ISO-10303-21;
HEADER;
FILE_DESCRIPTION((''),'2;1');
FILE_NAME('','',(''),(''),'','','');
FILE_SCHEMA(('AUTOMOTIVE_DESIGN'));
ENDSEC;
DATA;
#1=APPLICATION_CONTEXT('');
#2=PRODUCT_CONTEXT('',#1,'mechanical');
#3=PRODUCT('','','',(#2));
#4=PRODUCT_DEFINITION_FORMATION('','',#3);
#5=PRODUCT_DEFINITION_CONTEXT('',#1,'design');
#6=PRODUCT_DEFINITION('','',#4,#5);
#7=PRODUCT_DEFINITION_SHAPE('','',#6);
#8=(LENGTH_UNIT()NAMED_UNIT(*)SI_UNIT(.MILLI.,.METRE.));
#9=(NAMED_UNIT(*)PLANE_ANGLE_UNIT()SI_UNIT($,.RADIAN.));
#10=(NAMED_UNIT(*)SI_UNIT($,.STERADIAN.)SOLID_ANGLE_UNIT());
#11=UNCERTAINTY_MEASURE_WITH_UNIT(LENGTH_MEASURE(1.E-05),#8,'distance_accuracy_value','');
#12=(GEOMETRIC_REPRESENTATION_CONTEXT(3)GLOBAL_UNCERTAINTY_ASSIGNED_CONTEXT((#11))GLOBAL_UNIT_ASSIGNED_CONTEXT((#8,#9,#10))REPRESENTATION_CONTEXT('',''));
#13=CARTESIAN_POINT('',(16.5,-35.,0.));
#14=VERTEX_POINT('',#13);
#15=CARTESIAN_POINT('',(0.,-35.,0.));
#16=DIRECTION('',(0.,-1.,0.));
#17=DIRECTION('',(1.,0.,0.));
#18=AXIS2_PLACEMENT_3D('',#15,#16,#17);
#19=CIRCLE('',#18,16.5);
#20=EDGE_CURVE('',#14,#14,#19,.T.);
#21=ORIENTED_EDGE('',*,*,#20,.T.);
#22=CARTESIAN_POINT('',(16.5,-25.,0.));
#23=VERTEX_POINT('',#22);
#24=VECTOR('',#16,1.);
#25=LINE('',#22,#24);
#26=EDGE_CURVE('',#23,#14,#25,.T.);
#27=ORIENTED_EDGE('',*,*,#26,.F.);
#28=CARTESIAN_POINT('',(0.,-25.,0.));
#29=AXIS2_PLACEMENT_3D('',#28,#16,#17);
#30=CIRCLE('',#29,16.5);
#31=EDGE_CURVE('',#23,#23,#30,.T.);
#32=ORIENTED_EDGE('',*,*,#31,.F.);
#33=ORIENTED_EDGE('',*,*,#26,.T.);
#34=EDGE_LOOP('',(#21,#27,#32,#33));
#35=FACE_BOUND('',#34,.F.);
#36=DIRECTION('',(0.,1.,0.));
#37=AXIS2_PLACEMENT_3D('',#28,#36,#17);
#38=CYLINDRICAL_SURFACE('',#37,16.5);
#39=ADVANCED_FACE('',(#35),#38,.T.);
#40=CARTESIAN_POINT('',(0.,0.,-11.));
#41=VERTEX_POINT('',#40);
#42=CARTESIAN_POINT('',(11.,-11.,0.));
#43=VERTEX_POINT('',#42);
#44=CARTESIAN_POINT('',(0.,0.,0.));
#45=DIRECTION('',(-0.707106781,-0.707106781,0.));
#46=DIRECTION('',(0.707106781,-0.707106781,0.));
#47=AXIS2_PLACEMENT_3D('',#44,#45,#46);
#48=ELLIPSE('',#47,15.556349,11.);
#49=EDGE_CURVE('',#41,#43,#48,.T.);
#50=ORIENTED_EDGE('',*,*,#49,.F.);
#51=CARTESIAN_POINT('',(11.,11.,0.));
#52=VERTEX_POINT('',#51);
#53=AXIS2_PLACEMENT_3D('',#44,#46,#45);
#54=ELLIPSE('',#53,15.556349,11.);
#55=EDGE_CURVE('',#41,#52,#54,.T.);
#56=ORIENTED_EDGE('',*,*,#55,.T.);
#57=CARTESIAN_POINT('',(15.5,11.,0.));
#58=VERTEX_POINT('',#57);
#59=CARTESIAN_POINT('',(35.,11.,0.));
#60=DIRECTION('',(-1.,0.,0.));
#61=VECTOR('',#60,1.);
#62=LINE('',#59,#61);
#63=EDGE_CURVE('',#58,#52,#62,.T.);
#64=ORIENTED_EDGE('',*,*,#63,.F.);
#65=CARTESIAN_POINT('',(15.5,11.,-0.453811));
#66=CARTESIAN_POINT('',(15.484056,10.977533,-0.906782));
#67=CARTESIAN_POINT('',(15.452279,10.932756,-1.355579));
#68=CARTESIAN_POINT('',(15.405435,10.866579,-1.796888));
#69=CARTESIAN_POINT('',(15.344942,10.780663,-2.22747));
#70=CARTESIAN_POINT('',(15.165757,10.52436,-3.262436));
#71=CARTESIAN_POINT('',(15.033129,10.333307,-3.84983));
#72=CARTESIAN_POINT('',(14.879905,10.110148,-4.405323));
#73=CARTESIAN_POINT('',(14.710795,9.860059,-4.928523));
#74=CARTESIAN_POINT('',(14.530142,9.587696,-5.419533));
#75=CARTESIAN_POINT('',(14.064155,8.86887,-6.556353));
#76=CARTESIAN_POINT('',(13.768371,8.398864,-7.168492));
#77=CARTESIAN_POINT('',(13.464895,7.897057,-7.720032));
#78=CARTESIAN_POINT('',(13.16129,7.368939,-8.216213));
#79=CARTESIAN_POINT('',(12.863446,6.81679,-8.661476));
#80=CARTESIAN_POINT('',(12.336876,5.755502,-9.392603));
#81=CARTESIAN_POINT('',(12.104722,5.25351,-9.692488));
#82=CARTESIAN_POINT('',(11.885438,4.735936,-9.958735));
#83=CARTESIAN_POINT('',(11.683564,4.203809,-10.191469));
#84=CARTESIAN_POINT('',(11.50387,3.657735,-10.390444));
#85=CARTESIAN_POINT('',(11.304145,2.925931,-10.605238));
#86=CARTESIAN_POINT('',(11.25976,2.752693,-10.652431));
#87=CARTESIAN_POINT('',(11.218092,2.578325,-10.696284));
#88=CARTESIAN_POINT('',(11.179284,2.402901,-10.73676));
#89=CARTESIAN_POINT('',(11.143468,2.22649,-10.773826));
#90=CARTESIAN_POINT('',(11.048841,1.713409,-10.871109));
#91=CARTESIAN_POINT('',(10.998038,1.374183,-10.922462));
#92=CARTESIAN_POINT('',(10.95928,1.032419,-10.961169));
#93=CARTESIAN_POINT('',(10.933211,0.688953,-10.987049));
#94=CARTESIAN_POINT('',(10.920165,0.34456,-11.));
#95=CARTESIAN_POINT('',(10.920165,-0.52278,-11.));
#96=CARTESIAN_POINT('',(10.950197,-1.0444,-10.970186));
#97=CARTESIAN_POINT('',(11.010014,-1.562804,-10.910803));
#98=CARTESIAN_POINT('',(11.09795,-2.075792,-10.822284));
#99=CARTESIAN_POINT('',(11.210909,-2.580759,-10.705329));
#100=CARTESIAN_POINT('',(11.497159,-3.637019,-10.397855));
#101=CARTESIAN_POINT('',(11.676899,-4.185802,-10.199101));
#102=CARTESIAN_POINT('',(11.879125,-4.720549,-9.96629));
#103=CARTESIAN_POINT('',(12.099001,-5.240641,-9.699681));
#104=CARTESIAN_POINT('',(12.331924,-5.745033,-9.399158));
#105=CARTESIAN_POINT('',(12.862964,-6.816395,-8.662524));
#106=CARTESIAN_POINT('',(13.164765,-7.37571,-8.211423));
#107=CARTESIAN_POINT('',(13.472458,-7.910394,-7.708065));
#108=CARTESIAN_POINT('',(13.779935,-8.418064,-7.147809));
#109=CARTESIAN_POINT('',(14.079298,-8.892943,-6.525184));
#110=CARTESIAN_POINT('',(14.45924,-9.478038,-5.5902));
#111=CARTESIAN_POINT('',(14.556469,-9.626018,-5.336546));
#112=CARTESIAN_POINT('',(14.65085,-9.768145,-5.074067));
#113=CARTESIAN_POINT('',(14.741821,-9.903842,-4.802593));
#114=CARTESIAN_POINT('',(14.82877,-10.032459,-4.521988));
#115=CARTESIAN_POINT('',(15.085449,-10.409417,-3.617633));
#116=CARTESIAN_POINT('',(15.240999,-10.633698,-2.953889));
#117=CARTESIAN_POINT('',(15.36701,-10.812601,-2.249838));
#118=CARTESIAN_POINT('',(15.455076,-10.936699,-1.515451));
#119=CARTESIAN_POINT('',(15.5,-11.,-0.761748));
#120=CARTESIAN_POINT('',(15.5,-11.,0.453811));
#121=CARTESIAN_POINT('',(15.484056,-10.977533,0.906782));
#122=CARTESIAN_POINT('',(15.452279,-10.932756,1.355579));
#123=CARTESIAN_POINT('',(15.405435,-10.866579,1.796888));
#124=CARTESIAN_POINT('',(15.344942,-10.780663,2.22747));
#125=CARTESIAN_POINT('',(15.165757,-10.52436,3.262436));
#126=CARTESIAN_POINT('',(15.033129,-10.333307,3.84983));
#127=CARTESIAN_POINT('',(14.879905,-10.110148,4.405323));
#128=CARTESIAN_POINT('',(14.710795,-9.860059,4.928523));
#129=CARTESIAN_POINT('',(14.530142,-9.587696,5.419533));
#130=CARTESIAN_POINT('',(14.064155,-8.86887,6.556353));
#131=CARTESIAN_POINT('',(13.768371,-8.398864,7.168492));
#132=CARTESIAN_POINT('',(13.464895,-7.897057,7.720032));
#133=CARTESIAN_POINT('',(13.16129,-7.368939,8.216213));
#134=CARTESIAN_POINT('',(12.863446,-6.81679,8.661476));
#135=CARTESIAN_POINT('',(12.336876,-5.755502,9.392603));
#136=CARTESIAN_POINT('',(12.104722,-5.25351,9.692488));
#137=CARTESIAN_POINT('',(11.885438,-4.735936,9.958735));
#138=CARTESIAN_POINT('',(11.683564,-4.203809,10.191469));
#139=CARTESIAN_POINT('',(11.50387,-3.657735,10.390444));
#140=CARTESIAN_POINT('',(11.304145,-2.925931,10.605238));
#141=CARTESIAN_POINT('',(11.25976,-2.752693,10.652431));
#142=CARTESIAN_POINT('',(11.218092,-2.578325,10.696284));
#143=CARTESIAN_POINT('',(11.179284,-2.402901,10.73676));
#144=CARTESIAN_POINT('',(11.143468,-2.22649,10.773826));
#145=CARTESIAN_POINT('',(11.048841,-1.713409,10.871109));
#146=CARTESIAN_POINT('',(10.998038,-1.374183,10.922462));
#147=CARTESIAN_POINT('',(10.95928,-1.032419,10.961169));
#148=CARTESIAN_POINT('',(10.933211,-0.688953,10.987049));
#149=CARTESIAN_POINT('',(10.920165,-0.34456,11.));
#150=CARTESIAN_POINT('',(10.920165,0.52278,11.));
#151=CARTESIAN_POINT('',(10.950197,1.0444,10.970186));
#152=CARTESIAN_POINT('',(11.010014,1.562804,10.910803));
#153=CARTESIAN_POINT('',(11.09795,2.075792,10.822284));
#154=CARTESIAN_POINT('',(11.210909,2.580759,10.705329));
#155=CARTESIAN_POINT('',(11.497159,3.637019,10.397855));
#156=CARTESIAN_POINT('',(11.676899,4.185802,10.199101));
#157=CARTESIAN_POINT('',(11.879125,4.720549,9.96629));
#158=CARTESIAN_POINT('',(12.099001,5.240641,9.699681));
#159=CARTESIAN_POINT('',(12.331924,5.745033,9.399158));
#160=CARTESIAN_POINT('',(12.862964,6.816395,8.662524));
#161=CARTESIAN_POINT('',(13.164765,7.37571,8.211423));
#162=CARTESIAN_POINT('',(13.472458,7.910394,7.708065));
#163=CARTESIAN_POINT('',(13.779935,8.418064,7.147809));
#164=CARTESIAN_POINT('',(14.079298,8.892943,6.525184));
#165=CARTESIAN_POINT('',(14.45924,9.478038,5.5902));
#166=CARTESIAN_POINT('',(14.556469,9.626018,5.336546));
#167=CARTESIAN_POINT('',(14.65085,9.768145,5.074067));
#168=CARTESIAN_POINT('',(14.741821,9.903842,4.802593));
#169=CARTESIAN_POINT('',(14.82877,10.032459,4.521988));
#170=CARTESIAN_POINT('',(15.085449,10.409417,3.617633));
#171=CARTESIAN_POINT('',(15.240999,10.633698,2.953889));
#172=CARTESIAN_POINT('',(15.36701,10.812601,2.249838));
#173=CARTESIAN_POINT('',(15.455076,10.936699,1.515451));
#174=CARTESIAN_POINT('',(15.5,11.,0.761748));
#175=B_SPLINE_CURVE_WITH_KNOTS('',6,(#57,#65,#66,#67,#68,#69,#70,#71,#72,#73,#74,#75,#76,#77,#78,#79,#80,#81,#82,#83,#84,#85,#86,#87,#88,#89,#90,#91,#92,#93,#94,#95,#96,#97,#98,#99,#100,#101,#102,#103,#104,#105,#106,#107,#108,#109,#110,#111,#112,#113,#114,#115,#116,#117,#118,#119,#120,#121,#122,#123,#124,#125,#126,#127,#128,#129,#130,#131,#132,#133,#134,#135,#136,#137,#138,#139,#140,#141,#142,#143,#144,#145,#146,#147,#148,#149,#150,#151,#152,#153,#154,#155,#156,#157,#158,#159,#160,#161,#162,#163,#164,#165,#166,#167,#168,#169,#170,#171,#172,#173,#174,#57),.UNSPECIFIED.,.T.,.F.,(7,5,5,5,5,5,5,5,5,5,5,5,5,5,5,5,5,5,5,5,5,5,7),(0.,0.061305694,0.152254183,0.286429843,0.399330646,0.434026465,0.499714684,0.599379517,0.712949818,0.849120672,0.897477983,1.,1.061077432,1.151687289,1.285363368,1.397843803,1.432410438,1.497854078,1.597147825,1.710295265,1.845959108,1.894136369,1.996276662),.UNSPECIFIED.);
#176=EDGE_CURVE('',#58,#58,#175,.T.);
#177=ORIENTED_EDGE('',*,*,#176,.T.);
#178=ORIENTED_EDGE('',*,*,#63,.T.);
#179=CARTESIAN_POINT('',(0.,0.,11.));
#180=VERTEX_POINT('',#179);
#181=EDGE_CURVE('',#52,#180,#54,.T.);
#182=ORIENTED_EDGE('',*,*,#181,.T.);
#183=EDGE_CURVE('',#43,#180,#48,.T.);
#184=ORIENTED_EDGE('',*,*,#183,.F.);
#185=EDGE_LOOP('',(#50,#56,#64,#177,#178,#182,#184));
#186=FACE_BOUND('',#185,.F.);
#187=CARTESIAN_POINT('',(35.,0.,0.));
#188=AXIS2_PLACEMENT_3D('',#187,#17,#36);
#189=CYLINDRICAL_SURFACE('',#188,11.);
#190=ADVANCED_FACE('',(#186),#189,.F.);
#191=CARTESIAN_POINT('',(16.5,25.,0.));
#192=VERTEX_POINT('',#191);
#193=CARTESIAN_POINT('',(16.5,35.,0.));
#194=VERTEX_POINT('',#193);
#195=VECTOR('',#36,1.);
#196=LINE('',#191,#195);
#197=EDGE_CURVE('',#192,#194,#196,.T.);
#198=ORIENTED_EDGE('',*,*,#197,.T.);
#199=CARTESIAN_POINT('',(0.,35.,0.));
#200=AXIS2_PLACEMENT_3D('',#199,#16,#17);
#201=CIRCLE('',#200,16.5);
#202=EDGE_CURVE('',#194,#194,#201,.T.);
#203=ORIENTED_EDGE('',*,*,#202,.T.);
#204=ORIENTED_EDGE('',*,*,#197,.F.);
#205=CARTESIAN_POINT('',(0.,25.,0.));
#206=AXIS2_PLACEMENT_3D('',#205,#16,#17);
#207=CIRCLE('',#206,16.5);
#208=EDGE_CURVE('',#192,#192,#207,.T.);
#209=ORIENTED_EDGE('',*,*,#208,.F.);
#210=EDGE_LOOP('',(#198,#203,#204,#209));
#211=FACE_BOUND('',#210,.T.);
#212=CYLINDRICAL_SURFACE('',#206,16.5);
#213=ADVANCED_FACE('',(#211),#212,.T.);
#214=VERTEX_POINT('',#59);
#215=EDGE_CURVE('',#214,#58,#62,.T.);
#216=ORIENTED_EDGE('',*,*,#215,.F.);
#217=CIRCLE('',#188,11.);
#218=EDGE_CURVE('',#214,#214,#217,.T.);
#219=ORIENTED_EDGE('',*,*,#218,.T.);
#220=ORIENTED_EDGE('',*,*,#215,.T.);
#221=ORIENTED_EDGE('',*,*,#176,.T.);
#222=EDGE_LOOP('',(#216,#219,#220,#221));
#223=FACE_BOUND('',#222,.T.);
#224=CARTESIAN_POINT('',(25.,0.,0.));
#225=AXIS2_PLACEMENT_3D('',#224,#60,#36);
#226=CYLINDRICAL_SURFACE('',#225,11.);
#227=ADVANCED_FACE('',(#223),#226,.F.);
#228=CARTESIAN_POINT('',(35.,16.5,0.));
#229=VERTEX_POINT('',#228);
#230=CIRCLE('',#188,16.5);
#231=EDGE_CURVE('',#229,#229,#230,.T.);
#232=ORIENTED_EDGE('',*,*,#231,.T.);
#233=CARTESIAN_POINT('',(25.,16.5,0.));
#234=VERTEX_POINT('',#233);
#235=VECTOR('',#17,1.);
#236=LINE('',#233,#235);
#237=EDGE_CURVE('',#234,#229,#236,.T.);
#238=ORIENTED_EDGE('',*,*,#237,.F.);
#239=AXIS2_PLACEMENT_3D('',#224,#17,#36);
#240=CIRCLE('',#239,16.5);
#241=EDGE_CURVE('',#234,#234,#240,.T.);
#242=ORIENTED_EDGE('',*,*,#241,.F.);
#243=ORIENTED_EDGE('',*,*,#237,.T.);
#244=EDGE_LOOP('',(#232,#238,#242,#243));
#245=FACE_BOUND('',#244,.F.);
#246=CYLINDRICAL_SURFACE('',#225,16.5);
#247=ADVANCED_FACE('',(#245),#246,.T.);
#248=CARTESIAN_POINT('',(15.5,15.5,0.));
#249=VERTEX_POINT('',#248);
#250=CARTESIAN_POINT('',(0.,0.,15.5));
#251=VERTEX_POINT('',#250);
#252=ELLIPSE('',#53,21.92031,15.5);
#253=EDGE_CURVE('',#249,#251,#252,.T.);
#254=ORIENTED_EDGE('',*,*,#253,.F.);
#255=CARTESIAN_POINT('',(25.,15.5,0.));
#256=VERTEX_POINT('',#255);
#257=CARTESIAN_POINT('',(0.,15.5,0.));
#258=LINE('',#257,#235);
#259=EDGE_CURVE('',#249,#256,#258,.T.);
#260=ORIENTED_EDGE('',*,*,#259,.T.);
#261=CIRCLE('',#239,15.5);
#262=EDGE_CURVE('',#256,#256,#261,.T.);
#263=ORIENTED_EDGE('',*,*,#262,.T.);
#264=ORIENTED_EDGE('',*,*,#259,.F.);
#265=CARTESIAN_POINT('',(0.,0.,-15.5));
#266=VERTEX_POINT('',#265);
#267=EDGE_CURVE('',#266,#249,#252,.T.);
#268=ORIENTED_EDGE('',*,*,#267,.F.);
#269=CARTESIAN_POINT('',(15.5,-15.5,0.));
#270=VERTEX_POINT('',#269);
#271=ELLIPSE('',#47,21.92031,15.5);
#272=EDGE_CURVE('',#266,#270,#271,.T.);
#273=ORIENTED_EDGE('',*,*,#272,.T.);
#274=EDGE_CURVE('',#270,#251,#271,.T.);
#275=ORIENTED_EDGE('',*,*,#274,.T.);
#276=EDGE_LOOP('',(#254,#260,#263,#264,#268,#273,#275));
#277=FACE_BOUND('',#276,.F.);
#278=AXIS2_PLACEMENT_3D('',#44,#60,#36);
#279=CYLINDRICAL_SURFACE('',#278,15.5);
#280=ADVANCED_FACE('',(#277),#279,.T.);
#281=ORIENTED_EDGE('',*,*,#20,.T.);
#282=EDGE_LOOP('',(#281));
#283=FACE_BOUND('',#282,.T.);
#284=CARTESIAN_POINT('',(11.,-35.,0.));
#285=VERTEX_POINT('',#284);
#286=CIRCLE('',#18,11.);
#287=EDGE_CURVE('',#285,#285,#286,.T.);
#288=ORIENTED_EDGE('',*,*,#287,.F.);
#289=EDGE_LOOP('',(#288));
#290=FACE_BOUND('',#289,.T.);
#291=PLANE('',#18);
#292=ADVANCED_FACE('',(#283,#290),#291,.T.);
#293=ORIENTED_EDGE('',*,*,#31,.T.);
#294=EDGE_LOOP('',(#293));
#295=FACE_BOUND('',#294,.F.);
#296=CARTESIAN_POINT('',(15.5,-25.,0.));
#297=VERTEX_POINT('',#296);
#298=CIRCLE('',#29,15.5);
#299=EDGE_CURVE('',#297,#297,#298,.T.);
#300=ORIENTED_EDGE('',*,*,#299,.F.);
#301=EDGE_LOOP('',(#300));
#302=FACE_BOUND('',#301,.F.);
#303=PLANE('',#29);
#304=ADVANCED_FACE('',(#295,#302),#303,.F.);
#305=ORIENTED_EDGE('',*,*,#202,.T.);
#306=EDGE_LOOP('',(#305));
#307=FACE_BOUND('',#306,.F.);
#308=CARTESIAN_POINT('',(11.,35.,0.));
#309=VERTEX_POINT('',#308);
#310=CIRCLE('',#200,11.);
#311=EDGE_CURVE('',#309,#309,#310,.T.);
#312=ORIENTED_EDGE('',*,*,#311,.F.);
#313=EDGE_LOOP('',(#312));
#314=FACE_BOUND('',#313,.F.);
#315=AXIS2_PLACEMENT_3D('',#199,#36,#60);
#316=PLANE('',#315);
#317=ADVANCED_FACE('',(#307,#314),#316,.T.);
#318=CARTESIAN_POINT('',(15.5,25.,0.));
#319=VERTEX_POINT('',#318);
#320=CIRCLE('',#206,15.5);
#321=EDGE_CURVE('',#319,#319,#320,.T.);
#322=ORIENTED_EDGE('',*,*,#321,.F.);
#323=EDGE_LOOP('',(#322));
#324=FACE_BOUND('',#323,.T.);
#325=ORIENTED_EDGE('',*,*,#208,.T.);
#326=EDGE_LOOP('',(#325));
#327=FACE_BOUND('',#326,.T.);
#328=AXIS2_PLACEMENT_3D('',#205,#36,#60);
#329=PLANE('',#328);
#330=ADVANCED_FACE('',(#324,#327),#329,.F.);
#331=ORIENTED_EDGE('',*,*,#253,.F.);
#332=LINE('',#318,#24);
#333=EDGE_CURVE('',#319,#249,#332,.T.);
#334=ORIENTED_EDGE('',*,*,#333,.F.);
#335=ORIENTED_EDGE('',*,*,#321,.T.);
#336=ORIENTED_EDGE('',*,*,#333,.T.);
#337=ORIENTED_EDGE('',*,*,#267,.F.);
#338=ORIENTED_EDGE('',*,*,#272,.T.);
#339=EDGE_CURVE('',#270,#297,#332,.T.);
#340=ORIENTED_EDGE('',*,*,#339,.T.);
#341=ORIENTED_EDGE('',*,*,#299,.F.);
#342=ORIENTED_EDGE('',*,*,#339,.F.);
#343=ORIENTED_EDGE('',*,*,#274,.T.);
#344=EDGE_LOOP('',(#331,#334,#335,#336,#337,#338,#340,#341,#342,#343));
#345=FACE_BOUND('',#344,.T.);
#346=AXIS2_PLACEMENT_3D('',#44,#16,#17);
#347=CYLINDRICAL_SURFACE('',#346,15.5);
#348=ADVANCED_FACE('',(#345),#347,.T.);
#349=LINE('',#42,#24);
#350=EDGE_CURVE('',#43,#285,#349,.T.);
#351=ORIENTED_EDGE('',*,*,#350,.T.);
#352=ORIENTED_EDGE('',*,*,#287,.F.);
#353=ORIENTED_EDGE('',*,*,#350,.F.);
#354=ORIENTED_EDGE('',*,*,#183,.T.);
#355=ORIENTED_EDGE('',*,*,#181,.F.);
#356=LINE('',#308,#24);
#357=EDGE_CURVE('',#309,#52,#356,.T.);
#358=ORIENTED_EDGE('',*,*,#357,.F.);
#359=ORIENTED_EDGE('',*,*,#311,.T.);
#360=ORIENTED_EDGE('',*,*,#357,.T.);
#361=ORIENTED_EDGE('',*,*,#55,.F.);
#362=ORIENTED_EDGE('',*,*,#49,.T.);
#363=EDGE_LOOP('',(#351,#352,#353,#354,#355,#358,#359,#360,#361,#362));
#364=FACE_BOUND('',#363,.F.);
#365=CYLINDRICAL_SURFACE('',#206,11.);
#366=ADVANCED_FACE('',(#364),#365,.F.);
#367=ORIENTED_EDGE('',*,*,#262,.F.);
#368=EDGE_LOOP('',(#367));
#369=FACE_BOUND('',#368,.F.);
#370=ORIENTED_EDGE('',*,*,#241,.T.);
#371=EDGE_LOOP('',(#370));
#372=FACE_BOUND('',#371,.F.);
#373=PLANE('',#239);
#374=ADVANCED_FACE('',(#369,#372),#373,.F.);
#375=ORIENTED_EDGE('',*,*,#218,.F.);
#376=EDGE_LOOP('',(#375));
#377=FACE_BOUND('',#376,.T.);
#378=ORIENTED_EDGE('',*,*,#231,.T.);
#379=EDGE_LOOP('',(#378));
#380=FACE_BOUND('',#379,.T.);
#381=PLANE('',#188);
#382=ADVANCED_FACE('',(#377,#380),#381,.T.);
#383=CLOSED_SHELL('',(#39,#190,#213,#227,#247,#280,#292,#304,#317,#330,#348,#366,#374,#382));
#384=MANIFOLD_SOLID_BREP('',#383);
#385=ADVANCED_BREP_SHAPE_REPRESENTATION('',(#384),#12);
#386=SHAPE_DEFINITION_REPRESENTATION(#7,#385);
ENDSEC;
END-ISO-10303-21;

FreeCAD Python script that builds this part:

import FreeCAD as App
import Part
import Sketcher
from FreeCAD import Vector

doc = App.newDocument("Part")
params = doc.addObject("Spreadsheet::Sheet", "Params")
for row, (alias, value) in enumerate([
    ("sketch1_diameter", "31 mm"),
    ("sketch1_diameter2", "22 mm"),
    ("pad1_length", "25 mm"),
    ("sketch2_diameter", "33 mm"),
    ("sketch2_diameter2", "22 mm"),
    ("pad2_length", "10 mm"),
    ("sketch3_diameter", "31 mm"),
    ("sketch3_diameter2", "22 mm"),
    ("pad3_length", "25 mm"),
    ("sketch4_diameter", "33 mm"),
    ("sketch4_diameter2", "22 mm"),
    ("pad4_length", "10 mm"),
    ("sketch5_diameter", "22 mm"),
    ("pocket1_length", "200 mm"),
    ("sketch6_diameter", "22 mm"),
    ("pocket2_length", "35 mm"),
], start=1):
    params.set(f"A{row}", alias)
    params.set(f"B{row}", "=" + value)
    params.setAlias(f"B{row}", alias)

body = doc.addObject("PartDesign::Body", "Body")

sketch1 = body.newObject("Sketcher::SketchObject", "Sketch")
sketch1.AttachmentSupport = (doc.getObject("XZ_Plane"), [""])
sketch1.MapMode = "FlatFace"
sketch1.addGeometry([
    Part.Circle(Vector(0, 0, 0), Vector(0, 0, 1), 16),
    Part.Circle(Vector(0, 0, 0), Vector(0, 0, 1), 11),
], False)
sketch1.addConstraint([
    Sketcher.Constraint("Coincident", 0, 3, -1, 1),
    Sketcher.Constraint("Coincident", 1, 3, -1, 1),
    Sketcher.Constraint("Diameter", 0, 31.0),
    Sketcher.Constraint("Diameter", 1, 22.0),
])
sketch1.setExpression("Constraints[2]", "Params.sketch1_diameter")
sketch1.setExpression("Constraints[3]", "Params.sketch1_diameter2")
pad1 = body.newObject("PartDesign::Pad", "Pad")
pad1.Profile = sketch1
pad1.setExpression("Length", "Params.pad1_length")

sketch2 = body.newObject("Sketcher::SketchObject", "Sketch001")
sketch2.AttachmentSupport = (doc.getObject("XZ_Plane"), [""])
sketch2.MapMode = "FlatFace"
sketch2.AttachmentOffset = App.Placement(Vector(0, 0, 25), App.Rotation())
sketch2.addGeometry([
    Part.Circle(Vector(0, 0, 0), Vector(0, 0, 1), 16),
    Part.Circle(Vector(0, 0, 0), Vector(0, 0, 1), 11),
], False)
sketch2.addConstraint([
    Sketcher.Constraint("Coincident", 0, 3, -1, 1),
    Sketcher.Constraint("Coincident", 1, 3, -1, 1),
    Sketcher.Constraint("Diameter", 0, 33.0),
    Sketcher.Constraint("Diameter", 1, 22.0),
])
sketch2.setExpression("Constraints[2]", "Params.sketch2_diameter")
sketch2.setExpression("Constraints[3]", "Params.sketch2_diameter2")
pad2 = body.newObject("PartDesign::Pad", "Pad001")
pad2.Profile = sketch2
pad2.setExpression("Length", "Params.pad2_length")
body2 = doc.addObject("PartDesign::Body", "Body001")
doc.recompute()

body2.BaseFeature = body
doc.recompute()

mirroring = doc.addObject("Part::Mirroring", "Mirroring")
mirroring.Source = body
mirroring.Base = Vector(0, 0, 0)
mirroring.Normal = Vector(0, -1, 0)
body3 = doc.addObject("PartDesign::Body", "Body002")
body3.BaseFeature = mirroring
boolean = body2.newObject("PartDesign::Boolean", "Boolean")
boolean.Type = "Fuse"
boolean.addObjects([body3])
doc.recompute()

sketch3 = body2.newObject("Sketcher::SketchObject", "Sketch002")
sketch3.AttachmentSupport = (doc.getObject("YZ_Plane001"), [""])
sketch3.MapMode = "FlatFace"
sketch3.addGeometry([
    Part.Circle(Vector(0, 0, 0), Vector(0, 0, 1), 16),
    Part.Circle(Vector(0, 0, 0), Vector(0, 0, 1), 11),
], False)
sketch3.addConstraint([
    Sketcher.Constraint("Coincident", 0, 3, -1, 1),
    Sketcher.Constraint("Coincident", 1, 3, -1, 1),
    Sketcher.Constraint("Diameter", 0, 31.0),
    Sketcher.Constraint("Diameter", 1, 22.0),
])
sketch3.setExpression("Constraints[2]", "Params.sketch3_diameter")
sketch3.setExpression("Constraints[3]", "Params.sketch3_diameter2")
pad3 = body2.newObject("PartDesign::Pad", "Pad002")
pad3.Profile = sketch3
pad3.setExpression("Length", "Params.pad3_length")

sketch4 = body2.newObject("Sketcher::SketchObject", "Sketch003")
sketch4.AttachmentSupport = (doc.getObject("YZ_Plane001"), [""])
sketch4.MapMode = "FlatFace"
sketch4.AttachmentOffset = App.Placement(Vector(0, 0, 25), App.Rotation())
sketch4.addGeometry([
    Part.Circle(Vector(0, 0, 0), Vector(0, 0, 1), 16),
    Part.Circle(Vector(0, 0, 0), Vector(0, 0, 1), 11),
], False)
sketch4.addConstraint([
    Sketcher.Constraint("Coincident", 0, 3, -1, 1),
    Sketcher.Constraint("Coincident", 1, 3, -1, 1),
    Sketcher.Constraint("Diameter", 0, 33.0),
    Sketcher.Constraint("Diameter", 1, 22.0),
])
sketch4.setExpression("Constraints[2]", "Params.sketch4_diameter")
sketch4.setExpression("Constraints[3]", "Params.sketch4_diameter2")
pad4 = body2.newObject("PartDesign::Pad", "Pad003")
pad4.Profile = sketch4
pad4.setExpression("Length", "Params.pad4_length")

sketch5 = body2.newObject("Sketcher::SketchObject", "Sketch004")
sketch5.AttachmentSupport = (doc.getObject("XZ_Plane001"), [""])
sketch5.MapMode = "FlatFace"
sketch5.AttachmentOffset = App.Placement(Vector(0, 0, 35), App.Rotation())
sketch5.addGeometry(Part.Circle(Vector(0, 0, 0), Vector(0, 0, 1), 11), False)
sketch5.addConstraint([
    Sketcher.Constraint("Coincident", 0, 3, -1, 1),
    Sketcher.Constraint("Diameter", 0, 22.0),
])
sketch5.setExpression("Constraints[1]", "Params.sketch5_diameter")
pocket1 = body2.newObject("PartDesign::Pocket", "Pocket")
pocket1.Profile = sketch5
pocket1.setExpression("Length", "Params.pocket1_length")

sketch6 = body2.newObject("Sketcher::SketchObject", "Sketch005")
sketch6.AttachmentSupport = (doc.getObject("YZ_Plane001"), [""])
sketch6.MapMode = "FlatFace"
sketch6.AttachmentOffset = App.Placement(Vector(0, 0, 35), App.Rotation())
sketch6.addGeometry(Part.Circle(Vector(0, 0, 0), Vector(0, 0, 1), 11), False)
sketch6.addConstraint([
    Sketcher.Constraint("Coincident", 0, 3, -1, 1),
    Sketcher.Constraint("Diameter", 0, 22.0),
])
sketch6.setExpression("Constraints[1]", "Params.sketch6_diameter")
pocket2 = body2.newObject("PartDesign::Pocket", "Pocket001")
pocket2.Profile = sketch6
pocket2.setExpression("Length", "Params.pocket2_length")
mirroring.Visibility = False

doc.recompute()
